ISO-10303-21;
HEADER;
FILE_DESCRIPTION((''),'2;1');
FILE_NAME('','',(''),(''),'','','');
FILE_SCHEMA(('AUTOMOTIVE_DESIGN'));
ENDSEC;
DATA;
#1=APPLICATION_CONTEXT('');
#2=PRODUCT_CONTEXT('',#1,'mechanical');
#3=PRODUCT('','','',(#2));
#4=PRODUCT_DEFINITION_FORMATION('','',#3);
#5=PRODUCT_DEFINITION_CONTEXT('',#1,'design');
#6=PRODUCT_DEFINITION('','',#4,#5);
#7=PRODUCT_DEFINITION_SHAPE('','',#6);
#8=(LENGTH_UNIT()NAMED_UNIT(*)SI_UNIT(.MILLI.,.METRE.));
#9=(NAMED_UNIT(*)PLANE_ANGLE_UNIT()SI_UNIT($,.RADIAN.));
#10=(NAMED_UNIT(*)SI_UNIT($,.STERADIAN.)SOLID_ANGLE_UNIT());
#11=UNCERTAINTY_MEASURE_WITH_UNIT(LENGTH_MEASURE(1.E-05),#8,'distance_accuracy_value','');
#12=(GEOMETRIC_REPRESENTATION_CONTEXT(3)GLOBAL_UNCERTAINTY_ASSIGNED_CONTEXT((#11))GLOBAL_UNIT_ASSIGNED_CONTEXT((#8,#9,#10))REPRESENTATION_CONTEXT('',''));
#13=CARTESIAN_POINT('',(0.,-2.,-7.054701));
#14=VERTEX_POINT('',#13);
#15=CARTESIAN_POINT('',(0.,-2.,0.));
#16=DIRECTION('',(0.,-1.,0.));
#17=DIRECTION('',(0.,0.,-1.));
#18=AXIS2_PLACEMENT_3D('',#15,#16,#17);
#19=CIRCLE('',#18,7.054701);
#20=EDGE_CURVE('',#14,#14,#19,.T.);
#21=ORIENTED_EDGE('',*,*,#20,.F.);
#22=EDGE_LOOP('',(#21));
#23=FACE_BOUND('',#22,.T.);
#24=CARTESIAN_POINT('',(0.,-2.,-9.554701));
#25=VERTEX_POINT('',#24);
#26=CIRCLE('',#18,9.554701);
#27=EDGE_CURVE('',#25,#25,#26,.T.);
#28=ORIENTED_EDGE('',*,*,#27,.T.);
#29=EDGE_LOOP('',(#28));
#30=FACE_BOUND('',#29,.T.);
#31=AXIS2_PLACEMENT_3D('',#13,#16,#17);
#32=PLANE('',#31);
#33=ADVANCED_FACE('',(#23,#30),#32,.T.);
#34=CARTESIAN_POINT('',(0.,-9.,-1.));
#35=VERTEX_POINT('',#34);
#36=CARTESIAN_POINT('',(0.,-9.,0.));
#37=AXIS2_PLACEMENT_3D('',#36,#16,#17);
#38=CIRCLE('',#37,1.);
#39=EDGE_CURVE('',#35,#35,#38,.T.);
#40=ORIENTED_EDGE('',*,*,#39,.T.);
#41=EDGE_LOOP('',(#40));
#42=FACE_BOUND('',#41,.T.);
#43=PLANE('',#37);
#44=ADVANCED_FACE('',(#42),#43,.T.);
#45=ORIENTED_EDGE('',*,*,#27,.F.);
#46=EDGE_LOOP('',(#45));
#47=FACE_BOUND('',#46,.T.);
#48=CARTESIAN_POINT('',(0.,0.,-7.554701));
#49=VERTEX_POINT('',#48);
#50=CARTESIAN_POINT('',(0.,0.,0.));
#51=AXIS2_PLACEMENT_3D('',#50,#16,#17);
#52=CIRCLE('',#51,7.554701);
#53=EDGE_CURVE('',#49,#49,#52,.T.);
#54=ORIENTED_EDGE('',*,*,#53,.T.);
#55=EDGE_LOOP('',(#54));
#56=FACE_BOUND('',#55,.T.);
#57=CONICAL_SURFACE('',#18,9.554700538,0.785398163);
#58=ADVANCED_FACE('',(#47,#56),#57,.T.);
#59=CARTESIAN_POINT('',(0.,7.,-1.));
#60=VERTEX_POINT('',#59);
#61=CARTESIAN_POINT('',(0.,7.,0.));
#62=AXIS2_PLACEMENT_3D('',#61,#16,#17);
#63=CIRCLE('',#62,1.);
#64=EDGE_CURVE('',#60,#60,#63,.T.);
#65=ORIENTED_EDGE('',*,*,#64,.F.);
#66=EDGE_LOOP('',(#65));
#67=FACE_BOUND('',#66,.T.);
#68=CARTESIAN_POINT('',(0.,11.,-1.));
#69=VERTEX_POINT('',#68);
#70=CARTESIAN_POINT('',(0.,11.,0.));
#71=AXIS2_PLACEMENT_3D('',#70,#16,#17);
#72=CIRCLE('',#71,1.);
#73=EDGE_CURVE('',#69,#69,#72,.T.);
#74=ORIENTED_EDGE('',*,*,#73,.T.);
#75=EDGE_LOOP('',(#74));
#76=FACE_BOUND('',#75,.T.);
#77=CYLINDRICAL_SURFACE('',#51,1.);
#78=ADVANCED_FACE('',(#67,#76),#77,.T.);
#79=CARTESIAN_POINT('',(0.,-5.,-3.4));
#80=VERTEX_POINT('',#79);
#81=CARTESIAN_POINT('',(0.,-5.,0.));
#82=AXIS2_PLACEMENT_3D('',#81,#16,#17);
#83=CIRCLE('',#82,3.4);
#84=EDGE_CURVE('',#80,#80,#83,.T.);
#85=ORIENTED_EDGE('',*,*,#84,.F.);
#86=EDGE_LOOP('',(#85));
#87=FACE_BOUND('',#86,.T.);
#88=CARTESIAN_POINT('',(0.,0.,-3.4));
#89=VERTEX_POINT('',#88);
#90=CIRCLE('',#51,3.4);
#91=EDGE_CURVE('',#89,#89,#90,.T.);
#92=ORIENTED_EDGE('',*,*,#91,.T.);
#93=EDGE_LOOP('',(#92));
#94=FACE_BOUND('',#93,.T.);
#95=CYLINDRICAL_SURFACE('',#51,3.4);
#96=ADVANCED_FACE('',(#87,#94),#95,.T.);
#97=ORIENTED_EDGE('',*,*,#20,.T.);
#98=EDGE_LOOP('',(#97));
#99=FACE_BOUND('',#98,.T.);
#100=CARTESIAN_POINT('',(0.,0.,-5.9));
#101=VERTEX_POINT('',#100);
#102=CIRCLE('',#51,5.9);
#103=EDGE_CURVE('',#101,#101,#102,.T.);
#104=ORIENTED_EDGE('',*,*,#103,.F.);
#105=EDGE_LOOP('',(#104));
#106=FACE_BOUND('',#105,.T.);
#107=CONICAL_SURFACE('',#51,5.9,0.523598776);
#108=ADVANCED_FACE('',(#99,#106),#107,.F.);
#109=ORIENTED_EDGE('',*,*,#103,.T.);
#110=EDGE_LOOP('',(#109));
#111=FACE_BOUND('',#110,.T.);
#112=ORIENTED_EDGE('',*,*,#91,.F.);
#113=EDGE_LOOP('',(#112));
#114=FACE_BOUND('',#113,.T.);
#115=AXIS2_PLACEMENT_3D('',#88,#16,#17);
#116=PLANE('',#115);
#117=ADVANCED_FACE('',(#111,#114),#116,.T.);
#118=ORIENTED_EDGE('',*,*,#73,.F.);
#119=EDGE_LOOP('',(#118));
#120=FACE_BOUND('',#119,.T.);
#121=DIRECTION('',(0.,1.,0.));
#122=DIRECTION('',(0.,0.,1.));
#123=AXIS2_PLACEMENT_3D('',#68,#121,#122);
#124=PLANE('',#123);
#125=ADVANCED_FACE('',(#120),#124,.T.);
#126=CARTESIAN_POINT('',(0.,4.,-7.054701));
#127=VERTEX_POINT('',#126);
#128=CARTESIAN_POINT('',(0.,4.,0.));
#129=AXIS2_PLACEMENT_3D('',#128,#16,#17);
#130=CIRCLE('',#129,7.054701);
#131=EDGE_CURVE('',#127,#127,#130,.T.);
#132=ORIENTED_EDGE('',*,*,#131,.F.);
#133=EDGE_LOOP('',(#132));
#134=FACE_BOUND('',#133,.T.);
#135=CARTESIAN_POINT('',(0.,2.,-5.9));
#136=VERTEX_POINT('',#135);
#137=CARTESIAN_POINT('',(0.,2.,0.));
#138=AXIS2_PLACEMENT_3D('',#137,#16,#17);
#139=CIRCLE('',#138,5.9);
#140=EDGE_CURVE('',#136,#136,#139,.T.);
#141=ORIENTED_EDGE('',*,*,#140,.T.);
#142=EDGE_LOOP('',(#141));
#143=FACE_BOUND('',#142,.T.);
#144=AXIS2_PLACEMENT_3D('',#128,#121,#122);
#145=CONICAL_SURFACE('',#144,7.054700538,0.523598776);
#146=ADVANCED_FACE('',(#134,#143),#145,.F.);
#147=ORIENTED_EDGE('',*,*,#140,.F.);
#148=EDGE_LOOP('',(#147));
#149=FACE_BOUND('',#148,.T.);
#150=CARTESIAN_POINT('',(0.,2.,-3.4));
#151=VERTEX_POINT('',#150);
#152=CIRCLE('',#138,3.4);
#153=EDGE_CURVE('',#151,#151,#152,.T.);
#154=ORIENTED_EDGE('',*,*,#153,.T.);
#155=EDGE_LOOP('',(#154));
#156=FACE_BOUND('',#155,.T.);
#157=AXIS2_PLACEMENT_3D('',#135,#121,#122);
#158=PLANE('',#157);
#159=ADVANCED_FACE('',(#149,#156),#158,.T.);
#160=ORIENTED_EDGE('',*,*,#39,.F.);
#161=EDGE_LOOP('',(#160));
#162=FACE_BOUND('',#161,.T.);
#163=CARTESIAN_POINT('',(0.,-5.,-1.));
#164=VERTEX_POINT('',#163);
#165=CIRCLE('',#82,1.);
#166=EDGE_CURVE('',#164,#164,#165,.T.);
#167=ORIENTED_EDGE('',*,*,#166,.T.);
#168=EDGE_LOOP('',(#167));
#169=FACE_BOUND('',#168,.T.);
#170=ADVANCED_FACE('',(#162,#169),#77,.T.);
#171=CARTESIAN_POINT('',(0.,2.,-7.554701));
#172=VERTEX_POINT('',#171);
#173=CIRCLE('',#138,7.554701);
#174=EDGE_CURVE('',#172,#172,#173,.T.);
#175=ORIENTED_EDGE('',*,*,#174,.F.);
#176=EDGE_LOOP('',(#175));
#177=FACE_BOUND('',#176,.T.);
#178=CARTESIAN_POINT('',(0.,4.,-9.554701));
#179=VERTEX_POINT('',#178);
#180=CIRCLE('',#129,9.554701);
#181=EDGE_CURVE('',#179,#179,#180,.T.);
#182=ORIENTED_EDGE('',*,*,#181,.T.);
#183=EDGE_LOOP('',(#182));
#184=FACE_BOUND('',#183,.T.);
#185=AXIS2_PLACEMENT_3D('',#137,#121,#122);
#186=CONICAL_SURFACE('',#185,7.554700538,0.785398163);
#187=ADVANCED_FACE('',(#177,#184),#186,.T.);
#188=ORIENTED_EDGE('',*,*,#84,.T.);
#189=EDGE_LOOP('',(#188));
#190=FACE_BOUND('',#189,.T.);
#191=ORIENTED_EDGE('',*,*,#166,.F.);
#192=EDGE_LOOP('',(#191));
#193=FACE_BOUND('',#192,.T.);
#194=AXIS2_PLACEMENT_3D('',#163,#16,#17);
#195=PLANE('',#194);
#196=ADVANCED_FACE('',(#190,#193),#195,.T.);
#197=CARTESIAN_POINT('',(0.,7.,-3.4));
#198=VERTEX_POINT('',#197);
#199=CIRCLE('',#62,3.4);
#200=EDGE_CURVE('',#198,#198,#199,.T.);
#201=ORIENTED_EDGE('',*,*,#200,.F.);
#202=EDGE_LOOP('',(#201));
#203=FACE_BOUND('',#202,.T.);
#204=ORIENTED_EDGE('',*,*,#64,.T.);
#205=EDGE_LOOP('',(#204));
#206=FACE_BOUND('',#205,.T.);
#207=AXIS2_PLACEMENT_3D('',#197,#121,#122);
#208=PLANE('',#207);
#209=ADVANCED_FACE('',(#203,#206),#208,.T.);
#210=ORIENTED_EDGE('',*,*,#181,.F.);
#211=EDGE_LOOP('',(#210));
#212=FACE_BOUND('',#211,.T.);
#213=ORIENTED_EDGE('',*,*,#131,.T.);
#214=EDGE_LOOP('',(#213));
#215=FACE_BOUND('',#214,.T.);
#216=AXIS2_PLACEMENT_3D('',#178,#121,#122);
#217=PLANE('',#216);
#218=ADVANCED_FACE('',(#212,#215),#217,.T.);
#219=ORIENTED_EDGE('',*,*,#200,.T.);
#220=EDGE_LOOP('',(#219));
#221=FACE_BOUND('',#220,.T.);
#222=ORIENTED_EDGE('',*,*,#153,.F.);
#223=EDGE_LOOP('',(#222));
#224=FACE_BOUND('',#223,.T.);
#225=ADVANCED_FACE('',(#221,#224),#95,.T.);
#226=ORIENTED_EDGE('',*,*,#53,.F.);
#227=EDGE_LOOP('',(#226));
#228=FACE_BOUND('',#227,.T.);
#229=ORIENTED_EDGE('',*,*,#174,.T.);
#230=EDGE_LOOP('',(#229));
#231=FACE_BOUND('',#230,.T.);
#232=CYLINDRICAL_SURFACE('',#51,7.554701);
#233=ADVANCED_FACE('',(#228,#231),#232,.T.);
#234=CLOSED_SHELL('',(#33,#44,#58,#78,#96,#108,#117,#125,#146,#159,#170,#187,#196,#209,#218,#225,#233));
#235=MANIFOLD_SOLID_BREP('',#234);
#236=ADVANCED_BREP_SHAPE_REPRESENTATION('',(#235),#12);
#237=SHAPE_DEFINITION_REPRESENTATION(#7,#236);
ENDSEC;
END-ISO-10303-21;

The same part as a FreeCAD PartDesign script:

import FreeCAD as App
import Part
import Sketcher
Q = App.Units.Quantity


def add_polygon(sketch, points):
    """Adds a closed chain of lines whose ends are joined by coincident constraints."""
    first, n = sketch.GeometryCount, len(points)
    for a, b in zip(points, points[1:] + points[:1]):
        sketch.addGeometry(Part.LineSegment(App.Vector(*a, 0), App.Vector(*b, 0)), False)
    for i in range(n):
        sketch.addConstraint(Sketcher.Constraint("Coincident", first + i, 2, first + (i + 1) % n, 1))

doc = App.newDocument("Part")
params = doc.addObject("Spreadsheet::Sheet", "Params")
for row, (alias, value) in enumerate([
    ("sketch1_width", "5 mm"),
    ("sketch1_width2", "2 mm"),
    ("sketch1_width3", "4 mm"),
    ("sketch1_height", "1 mm"),
    ("sketch1_height2", "2.5 mm"),
    ("revolution_angle", "360 deg"),
], start=1):
    params.set(f"A{row}", alias)
    params.set(f"B{row}", "=" + value)
    params.setAlias(f"B{row}", alias)

body = doc.addObject("PartDesign::Body", "Body")

sketch1 = body.newObject("Sketcher::SketchObject", "Sketch")
sketch1.AttachmentSupport = (doc.getObject("YZ_Plane"), [""])
sketch1.MapMode = "FlatFace"
add_polygon(sketch1, [(-5, -3.4), (0, -3.4), (0, -5.9), (-2, -7.1), (-2, -9.6), (0, -7.6), (2, -7.6), (4, -9.6), (4, -7.1), (2, -5.9), (2, -3.4), (7, -3.4), (7, -1), (11, -1), (11, 0), (-9, 0), (-9, -1), (-5, -1)])
sketch1.addConstraint(Sketcher.Constraint("Horizontal", 0))
sketch1.addConstraint(Sketcher.Constraint("Vertical", 1))
sketch1.addConstraint(Sketcher.Constraint("Vertical", 3))
sketch1.addConstraint(Sketcher.Constraint("Horizontal", 5))
sketch1.addConstraint(Sketcher.Constraint("Vertical", 7))
sketch1.addConstraint(Sketcher.Constraint("Vertical", 9))
sketch1.addConstraint(Sketcher.Constraint("Horizontal", 10))
sketch1.addConstraint(Sketcher.Constraint("Vertical", 11))
sketch1.addConstraint(Sketcher.Constraint("Horizontal", 12))
sketch1.addConstraint(Sketcher.Constraint("Vertical", 13))
sketch1.addConstraint(Sketcher.Constraint("Horizontal", 14))
sketch1.addConstraint(Sketcher.Constraint("Vertical", 15))
sketch1.addConstraint(Sketcher.Constraint("Horizontal", 16))
sketch1.addConstraint(Sketcher.Constraint("Vertical", 17))
sketch1.addConstraint(Sketcher.Constraint("PointOnObject", 0, 2, -2))
sketch1.addConstraint(Sketcher.Constraint("PointOnObject", 4, 2, -2))
sketch1.addConstraint(Sketcher.Constraint("PointOnObject", 13, 2, -1))
sketch1.addConstraint(Sketcher.Constraint("Perpendicular", 4, 6))
sketch1.addConstraint(Sketcher.Constraint("Horizontal", 3, 2, 6, 2))
sketch1.addConstraint(Sketcher.Constraint("Horizontal", 2, 2, 7, 2))
sketch1.addConstraint(Sketcher.Constraint("Horizontal", 1, 2, 8, 2))
sketch1.addConstraint(Sketcher.Constraint("Horizontal", 0, 2, 9, 2))
sketch1.addConstraint(Sketcher.Constraint("Horizontal", 12, 2, 15, 2))
sketch1.addConstraint(Sketcher.Constraint("Vertical", 5, 2, 8, 2))
sketch1.addConstraint(Sketcher.Constraint("Equal", 0, 10))
sketch1.addConstraint(Sketcher.Constraint("Equal", 12, 16))
sketch1.addConstraint(Sketcher.Constraint("Equal", 1, 3))
sketch1.addConstraint(Sketcher.Constraint("Equal", 4, 6))
sketch1.addConstraint(Sketcher.Constraint("DistanceX", 0, 1, 0, 2, Q("5 mm")))
sketch1.addConstraint(Sketcher.Constraint("DistanceX", 5, 1, 5, 2, Q("2 mm")))
sketch1.addConstraint(Sketcher.Constraint("DistanceX", 12, 1, 12, 2, Q("4 mm")))
sketch1.addConstraint(Sketcher.Constraint("DistanceY", 13, 1, 13, 2, Q("1 mm")))
sketch1.addConstraint(Sketcher.Constraint("Angle", 2, Q("-150 deg")))
sketch1.addConstraint(Sketcher.Constraint("DistanceY", 1, 2, 1, 1, Q("2.5 mm")))
sketch1.addConstraint(Sketcher.Constraint("DistanceY", 11, 1, 11, 2, Q("2.4 mm")))
sketch1.addConstraint(Sketcher.Constraint("DistanceX", 2, 2, -1, 1, Q("2 mm")))
sketch1.setExpression("Constraints[46]", "Params.sketch1_width")
sketch1.setExpression("Constraints[47]", "Params.sketch1_width2")
sketch1.setExpression("Constraints[48]", "Params.sketch1_width3")
sketch1.setExpression("Constraints[49]", "Params.sketch1_height")
sketch1.setExpression("Constraints[51]", "Params.sketch1_height2")
revolution = body.newObject("PartDesign::Revolution", "Revolution")
revolution.Profile = sketch1
revolution.ReferenceAxis = (sketch1, ["H_Axis"])
revolution.setExpression("Angle", "Params.revolution_angle")

doc.recompute()
